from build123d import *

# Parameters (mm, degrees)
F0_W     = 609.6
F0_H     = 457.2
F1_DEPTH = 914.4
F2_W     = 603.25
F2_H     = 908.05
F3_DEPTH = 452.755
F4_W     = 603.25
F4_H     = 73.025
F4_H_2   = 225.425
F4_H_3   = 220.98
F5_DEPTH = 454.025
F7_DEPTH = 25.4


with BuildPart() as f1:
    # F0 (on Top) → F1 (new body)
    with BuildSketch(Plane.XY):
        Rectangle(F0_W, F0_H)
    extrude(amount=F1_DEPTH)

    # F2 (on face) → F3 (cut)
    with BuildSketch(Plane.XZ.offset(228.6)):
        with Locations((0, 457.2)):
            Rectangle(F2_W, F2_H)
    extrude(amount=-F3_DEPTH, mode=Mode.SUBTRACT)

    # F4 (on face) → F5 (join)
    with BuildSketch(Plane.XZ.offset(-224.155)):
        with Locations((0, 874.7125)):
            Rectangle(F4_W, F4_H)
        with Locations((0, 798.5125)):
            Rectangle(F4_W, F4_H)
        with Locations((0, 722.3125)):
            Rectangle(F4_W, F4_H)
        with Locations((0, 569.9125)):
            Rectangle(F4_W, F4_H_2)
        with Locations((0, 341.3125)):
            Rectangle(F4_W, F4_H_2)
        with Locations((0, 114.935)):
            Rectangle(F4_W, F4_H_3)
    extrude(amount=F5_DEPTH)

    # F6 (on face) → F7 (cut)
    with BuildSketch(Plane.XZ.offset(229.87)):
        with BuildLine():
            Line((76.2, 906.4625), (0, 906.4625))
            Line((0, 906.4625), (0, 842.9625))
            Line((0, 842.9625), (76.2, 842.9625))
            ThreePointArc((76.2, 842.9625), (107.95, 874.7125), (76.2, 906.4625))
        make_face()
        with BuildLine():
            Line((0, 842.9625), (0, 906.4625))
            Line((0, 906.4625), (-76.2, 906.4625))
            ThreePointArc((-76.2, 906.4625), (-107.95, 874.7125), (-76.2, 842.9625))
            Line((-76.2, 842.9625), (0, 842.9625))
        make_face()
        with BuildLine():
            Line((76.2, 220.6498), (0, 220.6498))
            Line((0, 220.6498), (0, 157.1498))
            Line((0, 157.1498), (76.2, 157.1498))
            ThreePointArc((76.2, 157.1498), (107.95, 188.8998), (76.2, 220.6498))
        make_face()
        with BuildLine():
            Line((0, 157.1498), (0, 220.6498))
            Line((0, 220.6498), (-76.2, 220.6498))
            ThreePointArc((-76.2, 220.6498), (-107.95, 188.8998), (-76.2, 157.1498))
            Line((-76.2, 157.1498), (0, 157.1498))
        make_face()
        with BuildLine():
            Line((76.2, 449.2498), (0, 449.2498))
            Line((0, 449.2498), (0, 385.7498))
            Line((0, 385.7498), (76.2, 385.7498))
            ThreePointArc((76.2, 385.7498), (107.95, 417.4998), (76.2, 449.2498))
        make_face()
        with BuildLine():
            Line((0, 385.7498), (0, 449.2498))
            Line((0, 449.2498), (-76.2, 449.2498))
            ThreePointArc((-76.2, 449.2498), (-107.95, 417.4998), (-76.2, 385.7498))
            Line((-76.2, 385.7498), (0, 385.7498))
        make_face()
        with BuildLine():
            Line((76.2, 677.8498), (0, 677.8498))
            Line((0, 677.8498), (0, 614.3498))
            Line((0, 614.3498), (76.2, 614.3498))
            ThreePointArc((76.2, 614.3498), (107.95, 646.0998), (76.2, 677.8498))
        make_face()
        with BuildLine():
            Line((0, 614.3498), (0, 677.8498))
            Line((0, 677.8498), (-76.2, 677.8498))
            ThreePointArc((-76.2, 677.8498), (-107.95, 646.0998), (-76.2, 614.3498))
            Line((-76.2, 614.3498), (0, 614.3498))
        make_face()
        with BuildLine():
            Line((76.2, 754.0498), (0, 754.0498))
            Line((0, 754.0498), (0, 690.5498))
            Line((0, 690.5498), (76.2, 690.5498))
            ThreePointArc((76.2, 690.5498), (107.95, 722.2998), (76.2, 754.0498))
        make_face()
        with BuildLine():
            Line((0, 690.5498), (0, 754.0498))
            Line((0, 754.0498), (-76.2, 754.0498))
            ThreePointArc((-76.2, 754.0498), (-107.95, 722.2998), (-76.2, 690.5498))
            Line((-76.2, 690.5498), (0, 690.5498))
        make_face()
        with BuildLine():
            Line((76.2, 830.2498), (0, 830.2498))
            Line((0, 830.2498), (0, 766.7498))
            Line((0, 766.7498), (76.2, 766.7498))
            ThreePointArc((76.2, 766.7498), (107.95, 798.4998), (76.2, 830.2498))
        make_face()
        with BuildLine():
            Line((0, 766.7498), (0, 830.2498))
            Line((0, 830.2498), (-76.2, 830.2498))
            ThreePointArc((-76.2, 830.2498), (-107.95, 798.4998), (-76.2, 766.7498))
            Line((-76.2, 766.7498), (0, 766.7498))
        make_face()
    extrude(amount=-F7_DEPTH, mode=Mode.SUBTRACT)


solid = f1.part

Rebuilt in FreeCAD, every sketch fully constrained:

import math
import FreeCAD as App
import Part
import Sketcher

V = App.Vector
Q = App.Units.Quantity


def add_polygon(sketch, points):
    """Adds a closed chain of lines whose ends are joined by coincident constraints."""
    first, n = sketch.GeometryCount, len(points)
    for a, b in zip(points, points[1:] + points[:1]):
        sketch.addGeometry(Part.LineSegment(App.Vector(*a, 0), App.Vector(*b, 0)), False)
    for i in range(n):
        sketch.addConstraint(Sketcher.Constraint("Coincident", first + i, 2, first + (i + 1) % n, 1))

doc = App.newDocument("Part")
body = doc.addObject("PartDesign::Body", "Body")

# Sketch on XY plane
sketch1 = body.newObject("Sketcher::SketchObject", "Sketch")
sketch1.AttachmentSupport = (doc.getObject("XY_Plane"), [""])
sketch1.MapMode = "FlatFace"
add_polygon(sketch1, [(-305, 229), (-305, -229), (305, -229), (305, 229)])  # lines 0-3
sketch1.addConstraint([
    Sketcher.Constraint("Vertical", 0),
    Sketcher.Constraint("Horizontal", 1),
    Sketcher.Constraint("Vertical", 2),
    Sketcher.Constraint("Horizontal", 3),
    Sketcher.Constraint("Symmetric", 0, 2, 2, 2, -1, 1),
    Sketcher.Constraint("DistanceX", 1, 1, 1, 2, Q("24 in")),
    Sketcher.Constraint("DistanceY", 0, 2, 0, 1, Q("18 in")),
])
pad1 = body.newObject("PartDesign::Pad", "Pad")
pad1.Profile = sketch1
pad1.Length = Q("36 in")

# Sketch on XZ plane
sketch2 = body.newObject("Sketcher::SketchObject", "Sketch001")
sketch2.AttachmentSupport = (doc.getObject("XZ_Plane"), [""])
sketch2.MapMode = "FlatFace"
sketch2.AttachmentOffset = App.Placement(V(0, 0, 9 * 25.4), App.Rotation())
add_polygon(sketch2, [(-302, 911), (-302, 3), (302, 3), (302, 911)])  # lines 0-3
sketch2.addConstraint([
    Sketcher.Constraint("Vertical", 0),
    Sketcher.Constraint("Horizontal", 1),
    Sketcher.Constraint("Vertical", 2),
    Sketcher.Constraint("Horizontal", 3),
    Sketcher.Constraint("DistanceX", 1, 1, 1, 2, Q("23.75 in")),
    Sketcher.Constraint("DistanceY", 0, 2, 0, 1, Q("35.75 in")),
    Sketcher.Constraint("DistanceX", 0, 2, -1, 1, Q("11.875 in")),
    Sketcher.Constraint("DistanceY", -1, 1, 0, 2, Q("0.125 in")),
])
pocket1 = body.newObject("PartDesign::Pocket", "Pocket")
pocket1.Profile = sketch2
pocket1.Length = Q("17.825 in")

# Sketch on XZ plane
sketch3 = body.newObject("Sketcher::SketchObject", "Sketch002")
sketch3.AttachmentSupport = (doc.getObject("XZ_Plane"), [""])
sketch3.MapMode = "FlatFace"
sketch3.AttachmentOffset = App.Placement(V(0, 0, -8.825 * 25.4), App.Rotation())
add_polygon(sketch3, [(-302, 911), (-302, 838), (302, 838), (302, 911)])  # lines 0-3
add_polygon(sketch3, [(-302, 835), (-302, 762), (302, 762), (302, 835)])  # lines 4-7
add_polygon(sketch3, [(-302, 759), (-302, 686), (302, 686), (302, 759)])  # lines 8-11
add_polygon(sketch3, [(-302, 683), (-302, 457), (302, 457), (302, 683)])  # lines 12-15
add_polygon(sketch3, [(-302, 454), (-302, 229), (302, 229), (302, 454)])  # lines 16-19
add_polygon(sketch3, [(-302, 225), (-302, 4), (302, 4), (302, 225)])  # lines 20-23
sketch3.addConstraint([
    Sketcher.Constraint("Vertical", 0),
    Sketcher.Constraint("Horizontal", 1),
    Sketcher.Constraint("Vertical", 2),
    Sketcher.Constraint("Horizontal", 3),
    Sketcher.Constraint("Vertical", 4),
    Sketcher.Constraint("Horizontal", 5),
    Sketcher.Constraint("Vertical", 6),
    Sketcher.Constraint("Horizontal", 7),
    Sketcher.Constraint("Vertical", 8),
    Sketcher.Constraint("Horizontal", 9),
    Sketcher.Constraint("Vertical", 10),
    Sketcher.Constraint("Horizontal", 11),
    Sketcher.Constraint("Vertical", 12),
    Sketcher.Constraint("Horizontal", 13),
    Sketcher.Constraint("Vertical", 14),
    Sketcher.Constraint("Horizontal", 15),
    Sketcher.Constraint("Vertical", 16),
    Sketcher.Constraint("Horizontal", 17),
    Sketcher.Constraint("Vertical", 18),
    Sketcher.Constraint("Horizontal", 19),
    Sketcher.Constraint("Vertical", 20),
    Sketcher.Constraint("Horizontal", 21),
    Sketcher.Constraint("Vertical", 22),
    Sketcher.Constraint("Horizontal", 23),
    Sketcher.Constraint("Vertical", 3, 2, 4, 2),
    Sketcher.Constraint("Vertical", 2, 2, 5, 2),
    Sketcher.Constraint("Vertical", 7, 2, 8, 2),
    Sketcher.Constraint("Vertical", 6, 2, 9, 2),
    Sketcher.Constraint("Vertical", 11, 2, 12, 2),
    Sketcher.Constraint("Vertical", 10, 2, 13, 2),
    Sketcher.Constraint("Vertical", 15, 2, 16, 2),
    Sketcher.Constraint("Vertical", 14, 2, 17, 2),
    Sketcher.Constraint("Vertical", 19, 2, 20, 2),
    Sketcher.Constraint("Vertical", 18, 2, 21, 2),
    Sketcher.Constraint("Equal", 2, 4),
    Sketcher.Constraint("Equal", 6, 8),
    Sketcher.Constraint("Equal", 14, 16),
    Sketcher.Constraint("DistanceY", 20, 2, 20, 1, Q("8.7 in")),
    Sketcher.Constraint("DistanceY", -1, 1, 0, 2, Q("33 in")),
    Sketcher.Constraint("DistanceY", -1, 1, 4, 2, Q("30 in")),
    Sketcher.Constraint("DistanceY", -1, 1, 8, 2, Q("27 in")),
    Sketcher.Constraint("DistanceY", -1, 1, 12, 2, Q("18 in")),
    Sketcher.Constraint("DistanceY", -1, 1, 16, 2, Q("9 in")),
    Sketcher.Constraint("DistanceY", 14, 2, 10, 2, Q("3 in")),
    Sketcher.Constraint("DistanceY", 22, 2, 18, 2, Q("9 in")),
    Sketcher.Constraint("DistanceX", 1, 1, 1, 2, Q("23.75 in")),
    Sketcher.Constraint("DistanceY", 0, 2, 0, 1, Q("2.875 in")),
    Sketcher.Constraint("DistanceX", 0, 2, -1, 1, Q("11.875 in")),
])
pad2 = body.newObject("PartDesign::Pad", "Pad001")
pad2.Profile = sketch3
pad2.Length = Q("17.875 in")

# Sketch on XZ plane
sketch4 = body.newObject("Sketcher::SketchObject", "Sketch003")
sketch4.AttachmentSupport = (doc.getObject("XZ_Plane"), [""])
sketch4.MapMode = "FlatFace"
sketch4.AttachmentOffset = App.Placement(V(0, 0, 9.05 * 25.4), App.Rotation())
sketch4.addGeometry([
    Part.LineSegment(V(76, 906, 0), V(-76, 906, 0)),  # 0
    Part.ArcOfCircle(Part.Circle(V(-76, 875, 0), V(0, 0, 1), 32), math.radians(90), math.radians(270)),  # 1
    Part.LineSegment(V(-76, 843, 0), V(76, 843, 0)),  # 2
    Part.ArcOfCircle(Part.Circle(V(76, 875, 0), V(0, 0, 1), 32), math.radians(-90), math.radians(90)),  # 3
    Part.LineSegment(V(76, 221, 0), V(-76, 221, 0)),  # 4
    Part.ArcOfCircle(Part.Circle(V(-76, 189, 0), V(0, 0, 1), 32), math.radians(90), math.radians(270)),  # 5
    Part.LineSegment(V(-76, 157, 0), V(76, 157, 0)),  # 6
    Part.ArcOfCircle(Part.Circle(V(76, 189, 0), V(0, 0, 1), 32), math.radians(-90), math.radians(90)),  # 7
    Part.LineSegment(V(76, 449, 0), V(-76, 449, 0)),  # 8
    Part.ArcOfCircle(Part.Circle(V(-76, 417, 0), V(0, 0, 1), 32), math.radians(90), math.radians(270)),  # 9
    Part.LineSegment(V(-76, 386, 0), V(76, 386, 0)),  # 10
    Part.ArcOfCircle(Part.Circle(V(76, 417, 0), V(0, 0, 1), 32), math.radians(-90), math.radians(90)),  # 11
    Part.LineSegment(V(76, 678, 0), V(-76, 678, 0)),  # 12
    Part.ArcOfCircle(Part.Circle(V(-76, 646, 0), V(0, 0, 1), 32), math.radians(90), math.radians(270)),  # 13
    Part.LineSegment(V(-76, 614, 0), V(76, 614, 0)),  # 14
    Part.ArcOfCircle(Part.Circle(V(76, 646, 0), V(0, 0, 1), 32), math.radians(-90), math.radians(90)),  # 15
    Part.LineSegment(V(76, 754, 0), V(-76, 754, 0)),  # 16
    Part.ArcOfCircle(Part.Circle(V(-76, 722, 0), V(0, 0, 1), 32), math.radians(90), math.radians(270)),  # 17
    Part.LineSegment(V(-76, 691, 0), V(76, 691, 0)),  # 18
    Part.ArcOfCircle(Part.Circle(V(76, 722, 0), V(0, 0, 1), 32), math.radians(-90), math.radians(90)),  # 19
    Part.LineSegment(V(76, 830, 0), V(-76, 830, 0)),  # 20
    Part.ArcOfCircle(Part.Circle(V(-76, 798, 0), V(0, 0, 1), 32), math.radians(90), math.radians(270)),  # 21
    Part.LineSegment(V(-76, 767, 0), V(76, 767, 0)),  # 22
    Part.ArcOfCircle(Part.Circle(V(76, 798, 0), V(0, 0, 1), 32), math.radians(-90), math.radians(90)),  # 23
], False)
sketch4.addConstraint([
    Sketcher.Constraint("Tangent", 0, 2, 1, 1),
    Sketcher.Constraint("Tangent", 1, 2, 2, 1),
    Sketcher.Constraint("Tangent", 2, 2, 3, 1),
    Sketcher.Constraint("Tangent", 3, 2, 0, 1),
    Sketcher.Constraint("Tangent", 4, 2, 5, 1),
    Sketcher.Constraint("Tangent", 5, 2, 6, 1),
    Sketcher.Constraint("Tangent", 6, 2, 7, 1),
    Sketcher.Constraint("Tangent", 7, 2, 4, 1),
    Sketcher.Constraint("Tangent", 8, 2, 9, 1),
    Sketcher.Constraint("Tangent", 9, 2, 10, 1),
    Sketcher.Constraint("Tangent", 10, 2, 11, 1),
    Sketcher.Constraint("Tangent", 11, 2, 8, 1),
    Sketcher.Constraint("Tangent", 12, 2, 13, 1),
    Sketcher.Constraint("Tangent", 13, 2, 14, 1),
    Sketcher.Constraint("Tangent", 14, 2, 15, 1),
    Sketcher.Constraint("Tangent", 15, 2, 12, 1),
    Sketcher.Constraint("Tangent", 16, 2, 17, 1),
    Sketcher.Constraint("Tangent", 17, 2, 18, 1),
    Sketcher.Constraint("Tangent", 18, 2, 19, 1),
    Sketcher.Constraint("Tangent", 19, 2, 16, 1),
    Sketcher.Constraint("Tangent", 20, 2, 21, 1),
    Sketcher.Constraint("Tangent", 21, 2, 22, 1),
    Sketcher.Constraint("Tangent", 22, 2, 23, 1),
    Sketcher.Constraint("Tangent", 23, 2, 20, 1),
    Sketcher.Constraint("Horizontal", 0),
    Sketcher.Constraint("Horizontal", 2),
    Sketcher.Constraint("Horizontal", 4),
    Sketcher.Constraint("Horizontal", 6),
    Sketcher.Constraint("Horizontal", 8),
    Sketcher.Constraint("Horizontal", 10),
    Sketcher.Constraint("Horizontal", 12),
    Sketcher.Constraint("Horizontal", 14),
    Sketcher.Constraint("Horizontal", 16),
    Sketcher.Constraint("Horizontal", 18),
    Sketcher.Constraint("Horizontal", 20),
    Sketcher.Constraint("Horizontal", 22),
    Sketcher.Constraint("Equal", 3, 5),
    Sketcher.Constraint("Equal", 7, 9),
    Sketcher.Constraint("Equal", 11, 13),
    Sketcher.Constraint("Equal", 15, 17),
    Sketcher.Constraint("Equal", 19, 21),
    Sketcher.Constraint("Vertical", 1, 3, 5, 3),
    Sketcher.Constraint("Vertical", 3, 3, 7, 3),
    Sketcher.Constraint("Vertical", 5, 3, 9, 3),
    Sketcher.Constraint("Vertical", 7, 3, 11, 3),
    Sketcher.Constraint("Vertical", 9, 3, 13, 3),
    Sketcher.Constraint("Vertical", 11, 3, 15, 3),
    Sketcher.Constraint("Vertical", 13, 3, 17, 3),
    Sketcher.Constraint("Vertical", 15, 3, 19, 3),
    Sketcher.Constraint("Vertical", 17, 3, 21, 3),
    Sketcher.Constraint("Vertical", 19, 3, 23, 3),
    Sketcher.Constraint("DistanceX", 0, 2, 0, 1, Q("6 in")),
    Sketcher.Constraint("Radius", 1, Q("1.25 in")),
    Sketcher.Constraint("DistanceX", 1, 3, -1, 1, Q("3 in")),
    Sketcher.Constraint("DistanceY", 5, 3, 9, 3, Q("9 in")),
    Sketcher.Constraint("DistanceY", 9, 3, 13, 3, Q("9 in")),
    Sketcher.Constraint("DistanceY", 13, 3, 17, 3, Q("3 in")),
    Sketcher.Constraint("DistanceY", 17, 3, 21, 3, Q("3 in")),
    Sketcher.Constraint("DistanceY", -1, 1, 1, 3, Q("34.4375 in")),
    Sketcher.Constraint("DistanceY", -1, 1, 5, 3, Q("7.437 in")),
])
pocket2 = body.newObject("PartDesign::Pocket", "Pocket001")
pocket2.Profile = sketch4
pocket2.Length = Q("1 in")

doc.recompute()
